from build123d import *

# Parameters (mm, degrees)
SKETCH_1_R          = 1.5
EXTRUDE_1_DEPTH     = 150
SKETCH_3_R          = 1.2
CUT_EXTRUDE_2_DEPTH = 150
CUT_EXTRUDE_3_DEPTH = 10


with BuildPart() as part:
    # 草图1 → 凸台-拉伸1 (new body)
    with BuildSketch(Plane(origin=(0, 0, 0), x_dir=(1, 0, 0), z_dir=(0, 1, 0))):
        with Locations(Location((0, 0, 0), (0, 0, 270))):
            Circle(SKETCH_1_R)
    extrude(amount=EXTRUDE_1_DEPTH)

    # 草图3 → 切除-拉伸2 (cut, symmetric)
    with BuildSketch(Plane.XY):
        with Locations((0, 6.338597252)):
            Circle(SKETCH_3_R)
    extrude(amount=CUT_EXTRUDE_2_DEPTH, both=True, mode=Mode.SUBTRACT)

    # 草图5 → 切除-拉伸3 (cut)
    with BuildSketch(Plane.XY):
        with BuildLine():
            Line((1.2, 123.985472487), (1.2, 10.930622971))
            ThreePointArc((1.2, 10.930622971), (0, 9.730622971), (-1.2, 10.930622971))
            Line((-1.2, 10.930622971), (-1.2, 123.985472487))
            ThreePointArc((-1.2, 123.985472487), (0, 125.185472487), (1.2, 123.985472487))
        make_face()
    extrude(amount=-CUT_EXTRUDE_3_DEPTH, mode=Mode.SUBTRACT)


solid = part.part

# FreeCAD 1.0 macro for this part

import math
import FreeCAD as App
import Part
import Sketcher

V = App.Vector

doc = App.newDocument("Part")
params = doc.addObject("Spreadsheet::Sheet", "Params")
for row, (alias, value) in enumerate([
    ("sketch1_diameter", "3 mm"),
    ("pad1_length", "150 mm"),
    ("sketch2_diameter", "2.4 mm"),
    ("pocket1_length", "300 mm"),
    ("sketch3_radius", "1.2 mm"),
    ("pocket2_length", "10 mm"),
], start=1):
    params.set(f"A{row}", alias)
    params.set(f"B{row}", "=" + value)
    params.setAlias(f"B{row}", alias)

body = doc.addObject("PartDesign::Body", "Body")

# Sketch on XZ plane
sketch1 = doc.addObject("Sketcher::SketchObject", "Sketch")
body.addObject(sketch1)
sketch1.AttachmentSupport = (doc.XZ_Plane, [""])
sketch1.MapMode = "FlatFace"
sketch1.addGeometry(Part.Circle(V(0, 0, 0), V(0, 0, 1), 1.5), False)
sketch1.addConstraint([
    Sketcher.Constraint("Coincident", 0, 3, -1, 1),
    Sketcher.Constraint("Diameter", 0, 3.0),
])
sketch1.setExpression("Constraints[1]", "Params.sketch1_diameter")
pad1 = doc.addObject("PartDesign::Pad", "Pad")
body.addObject(pad1)
pad1.Profile = sketch1
pad1.setExpression("Length", "Params.pad1_length")
pad1.Reversed = True

# Sketch on XY plane
sketch2 = doc.addObject("Sketcher::SketchObject", "Sketch001")
body.addObject(sketch2)
sketch2.AttachmentSupport = (doc.XY_Plane, [""])
sketch2.MapMode = "FlatFace"
sketch2.addGeometry(Part.Circle(V(0, 6.338597, 0), V(0, 0, 1), 1.2), False)
sketch2.addConstraint([
    Sketcher.Constraint("PointOnObject", 0, 3, -2),
    Sketcher.Constraint("Diameter", 0, 2.4),
    Sketcher.Constraint("DistanceY", -1, 1, 0, 3, 6.338597),
])
sketch2.setExpression("Constraints[1]", "Params.sketch2_diameter")
pocket1 = doc.addObject("PartDesign::Pocket", "Pocket")
body.addObject(pocket1)
pocket1.Profile = sketch2
pocket1.setExpression("Length", "Params.pocket1_length")
pocket1.Midplane = True

# Sketch on XY plane
sketch3 = doc.addObject("Sketcher::SketchObject", "Sketch002")
body.addObject(sketch3)
sketch3.AttachmentSupport = (doc.XY_Plane, [""])
sketch3.MapMode = "FlatFace"
sketch3.addGeometry([
    Part.LineSegment(V(1.2, 10.930623, 0), V(1.2, 123.985472, 0)),
    Part.ArcOfCircle(Part.Circle(V(0, 123.985472, 0), V(0, 0, 1), 1.2), math.radians(0), math.radians(180)),
    Part.LineSegment(V(-1.2, 123.985472, 0), V(-1.2, 10.930623, 0)),
    Part.ArcOfCircle(Part.Circle(V(0, 10.930623, 0), V(0, 0, 1), 1.2), math.radians(180), math.radians(360)),
], False)
sketch3.addConstraint([
    Sketcher.Constraint("Tangent", 0, 2, 1, 1),
    Sketcher.Constraint("Tangent", 1, 2, 2, 1),
    Sketcher.Constraint("Tangent", 2, 2, 3, 1),
    Sketcher.Constraint("Tangent", 3, 2, 0, 1),
    Sketcher.Constraint("Vertical", 0),
    Sketcher.Constraint("Vertical", 2),
    Sketcher.Constraint("PointOnObject", 1, 3, -2),
    Sketcher.Constraint("Radius", 1, 1.2),
    Sketcher.Constraint("DistanceY", 0, 1, 0, 2, 113.05485),
    Sketcher.Constraint("DistanceY", -1, 1, 1, 3, 123.985472),
])
sketch3.setExpression("Constraints[7]", "Params.sketch3_radius")
pocket2 = doc.addObject("PartDesign::Pocket", "Pocket001")
body.addObject(pocket2)
pocket2.Profile = sketch3
pocket2.setExpression("Length", "Params.pocket2_length")

doc.recompute()
